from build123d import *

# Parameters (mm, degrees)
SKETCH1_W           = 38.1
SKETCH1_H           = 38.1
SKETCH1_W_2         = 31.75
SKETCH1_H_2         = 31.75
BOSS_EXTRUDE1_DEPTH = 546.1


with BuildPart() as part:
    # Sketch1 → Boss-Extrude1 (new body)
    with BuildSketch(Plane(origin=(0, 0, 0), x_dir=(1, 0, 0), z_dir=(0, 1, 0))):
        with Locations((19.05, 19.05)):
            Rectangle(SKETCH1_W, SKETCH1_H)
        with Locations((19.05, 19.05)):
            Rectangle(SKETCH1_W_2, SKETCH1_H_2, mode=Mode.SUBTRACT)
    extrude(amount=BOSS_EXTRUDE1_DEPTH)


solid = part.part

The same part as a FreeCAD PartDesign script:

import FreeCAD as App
import Part
import Sketcher
from FreeCAD import Vector
Q = App.Units.Quantity

doc = App.newDocument("Part")
body = doc.addObject("PartDesign::Body", "Body")

# Sketch on XZ plane
sketch1 = body.newObject("Sketcher::SketchObject", "Sketch")
sketch1.AttachmentSupport = (doc.getObject("XZ_Plane"), [""])
sketch1.MapMode = "FlatFace"
sketch1.addGeometry([
    Part.LineSegment(Vector(0, -38.1, 0), Vector(0, 0, 0)),  # 0
    Part.LineSegment(Vector(0, 0, 0), Vector(38.1, 0, 0)),  # 1
    Part.LineSegment(Vector(38.1, 0, 0), Vector(38.1, -38.1, 0)),  # 2
    Part.LineSegment(Vector(38.1, -38.1, 0), Vector(0, -38.1, 0)),  # 3
    Part.LineSegment(Vector(34.925, -3.175, 0), Vector(3.175, -3.175, 0)),  # 4
    Part.LineSegment(Vector(3.175, -3.175, 0), Vector(3.175, -34.925, 0)),  # 5
    Part.LineSegment(Vector(3.175, -34.925, 0), Vector(34.925, -34.925, 0)),  # 6
    Part.LineSegment(Vector(34.925, -34.925, 0), Vector(34.925, -3.175, 0)),  # 7
], False)
sketch1.addConstraint([
    Sketcher.Constraint("Coincident", 0, 2, 1, 1),
    Sketcher.Constraint("Coincident", 1, 2, 2, 1),
    Sketcher.Constraint("Coincident", 2, 2, 3, 1),
    Sketcher.Constraint("Coincident", 3, 2, 0, 1),
    Sketcher.Constraint("Coincident", 4, 2, 5, 1),
    Sketcher.Constraint("Coincident", 5, 2, 6, 1),
    Sketcher.Constraint("Coincident", 6, 2, 7, 1),
    Sketcher.Constraint("Coincident", 7, 2, 4, 1),
    Sketcher.Constraint("Vertical", 0),
    Sketcher.Constraint("Horizontal", 1),
    Sketcher.Constraint("Vertical", 2),
    Sketcher.Constraint("Horizontal", 3),
    Sketcher.Constraint("Horizontal", 4),
    Sketcher.Constraint("Vertical", 5),
    Sketcher.Constraint("Horizontal", 6),
    Sketcher.Constraint("Vertical", 7),
    Sketcher.Constraint("Coincident", 0, 2, -1, 1),
    Sketcher.Constraint("Equal", 3, 0),
    Sketcher.Constraint("Equal", 6, 5),
    Sketcher.Constraint("DistanceX", 1, 1, 1, 2, Q("1.5 in")),
    Sketcher.Constraint("DistanceX", 4, 2, 4, 1, Q("1.25 in")),
    Sketcher.Constraint("DistanceX", -1, 1, 4, 2, Q("0.125 in")),
    Sketcher.Constraint("DistanceY", 4, 2, -1, 1, Q("0.125 in")),
])
pad1 = body.newObject("PartDesign::Pad", "Pad")
pad1.Profile = sketch1
pad1.Length = Q("21.5 in")
pad1.Reversed = True

doc.recompute()
